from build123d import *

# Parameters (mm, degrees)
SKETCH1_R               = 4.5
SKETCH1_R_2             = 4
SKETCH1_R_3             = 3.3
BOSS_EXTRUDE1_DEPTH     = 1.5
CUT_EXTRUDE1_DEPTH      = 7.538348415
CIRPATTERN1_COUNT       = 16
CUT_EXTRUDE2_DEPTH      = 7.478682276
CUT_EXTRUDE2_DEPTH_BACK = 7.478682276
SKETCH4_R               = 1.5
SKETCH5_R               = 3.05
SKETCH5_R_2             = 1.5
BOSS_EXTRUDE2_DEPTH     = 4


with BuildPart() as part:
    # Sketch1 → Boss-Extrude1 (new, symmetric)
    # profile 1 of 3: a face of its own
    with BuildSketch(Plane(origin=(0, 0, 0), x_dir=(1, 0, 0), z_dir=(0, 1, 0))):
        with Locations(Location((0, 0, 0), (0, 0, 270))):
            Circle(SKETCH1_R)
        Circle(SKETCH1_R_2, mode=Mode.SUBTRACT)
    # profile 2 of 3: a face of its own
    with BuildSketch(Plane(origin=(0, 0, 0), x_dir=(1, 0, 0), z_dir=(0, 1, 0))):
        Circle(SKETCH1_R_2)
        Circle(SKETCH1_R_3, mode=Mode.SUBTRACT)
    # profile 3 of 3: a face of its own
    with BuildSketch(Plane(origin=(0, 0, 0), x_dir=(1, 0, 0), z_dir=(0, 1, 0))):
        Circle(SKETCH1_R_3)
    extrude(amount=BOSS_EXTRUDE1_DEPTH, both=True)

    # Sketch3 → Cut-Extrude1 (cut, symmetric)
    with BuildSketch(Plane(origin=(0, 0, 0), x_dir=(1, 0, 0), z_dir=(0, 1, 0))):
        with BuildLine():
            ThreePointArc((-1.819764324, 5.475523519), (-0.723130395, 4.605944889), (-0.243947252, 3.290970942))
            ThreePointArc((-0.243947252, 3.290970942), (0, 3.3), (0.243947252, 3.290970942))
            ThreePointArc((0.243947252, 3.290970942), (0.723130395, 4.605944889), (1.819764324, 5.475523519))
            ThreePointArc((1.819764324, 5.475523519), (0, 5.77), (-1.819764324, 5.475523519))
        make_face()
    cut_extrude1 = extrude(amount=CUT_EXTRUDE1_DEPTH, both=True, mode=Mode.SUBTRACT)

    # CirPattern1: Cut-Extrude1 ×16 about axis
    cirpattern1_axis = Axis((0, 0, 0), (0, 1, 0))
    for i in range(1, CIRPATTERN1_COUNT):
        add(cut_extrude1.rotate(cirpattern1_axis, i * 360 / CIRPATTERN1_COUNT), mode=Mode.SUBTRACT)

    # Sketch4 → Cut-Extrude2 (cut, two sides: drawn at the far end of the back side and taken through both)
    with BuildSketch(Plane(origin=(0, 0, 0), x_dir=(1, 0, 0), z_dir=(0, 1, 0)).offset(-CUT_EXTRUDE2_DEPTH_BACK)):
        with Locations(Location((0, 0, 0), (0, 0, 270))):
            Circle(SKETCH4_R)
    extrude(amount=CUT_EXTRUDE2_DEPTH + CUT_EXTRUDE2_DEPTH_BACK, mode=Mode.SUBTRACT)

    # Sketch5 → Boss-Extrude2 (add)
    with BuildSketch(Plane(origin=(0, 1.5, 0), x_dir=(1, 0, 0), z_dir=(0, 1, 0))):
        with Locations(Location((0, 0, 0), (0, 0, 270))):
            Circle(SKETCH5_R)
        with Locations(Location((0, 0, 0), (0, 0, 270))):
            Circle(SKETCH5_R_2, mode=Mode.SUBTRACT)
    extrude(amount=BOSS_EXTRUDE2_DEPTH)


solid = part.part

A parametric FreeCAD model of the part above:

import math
import FreeCAD as App
import Part
import Sketcher

V = App.Vector

doc = App.newDocument("Part")
body = doc.addObject("PartDesign::Body", "Body")

# Sketch on XZ plane
sketch1 = body.newObject("Sketcher::SketchObject", "Sketch")
sketch1.AttachmentSupport = (doc.getObject("XZ_Plane"), [""])
sketch1.MapMode = "FlatFace"
sketch1.addGeometry(Part.Circle(V(0, 0, 0), V(0, 0, 1), 4.5), False)
sketch1.addConstraint(Sketcher.Constraint("Coincident", 0, 3, -1, 1))
sketch1.addConstraint(Sketcher.Constraint("Diameter", 0, 9.0))
pad1 = body.newObject("PartDesign::Pad", "Pad")
pad1.Profile = sketch1
pad1.Length = 3
pad1.Midplane = True

# Sketch on XZ plane
sketch2 = body.newObject("Sketcher::SketchObject", "Sketch001")
sketch2.AttachmentSupport = (doc.getObject("XZ_Plane"), [""])
sketch2.MapMode = "FlatFace"
sketch2.addGeometry(Part.ArcOfCircle(Part.Circle(V(-2.80974, -3.100778, 0), V(0, 0, 1), 2.572832), math.radians(-67.369883), math.radians(-4.239367)), False)
sketch2.addGeometry(Part.ArcOfCircle(Part.Circle(V(0, 0, 0), V(0, 0, 1), 3.3), math.radians(-94.239366), math.radians(-85.760634)), False)
sketch2.addGeometry(Part.ArcOfCircle(Part.Circle(V(2.80974, -3.100778, 0), V(0, 0, 1), 2.572832), math.radians(-175.760633), math.radians(-112.630117)), False)
sketch2.addGeometry(Part.ArcOfCircle(Part.Circle(V(0, 0, 0), V(0, 0, 1), 5.77), math.radians(-108.383983), math.radians(-71.616017)), False)
sketch2.addConstraint(Sketcher.Constraint("Coincident", 0, 2, 1, 1))
sketch2.addConstraint(Sketcher.Constraint("Coincident", 1, 2, 2, 1))
sketch2.addConstraint(Sketcher.Constraint("Coincident", 2, 2, 3, 2))
sketch2.addConstraint(Sketcher.Constraint("Coincident", 3, 1, 0, 1))
sketch2.addConstraint(Sketcher.Constraint("Coincident", 1, 3, -1, 1))
sketch2.addConstraint(Sketcher.Constraint("Coincident", 3, 3, -1, 1))
sketch2.addConstraint(Sketcher.Constraint("Equal", 0, 2))
sketch2.addConstraint(Sketcher.Constraint("Symmetric", 0, 3, 2, 3, -2))
sketch2.addConstraint(Sketcher.Constraint("Radius", 1, 3.3))
sketch2.addConstraint(Sketcher.Constraint("Radius", 3, 5.77))
sketch2.addConstraint(Sketcher.Constraint("Radius", 0, 2.572832))
sketch2.addConstraint(Sketcher.Constraint("DistanceX", 0, 3, -1, 1, 2.80974))
sketch2.addConstraint(Sketcher.Constraint("DistanceY", 0, 3, -1, 1, 3.100778))
pocket1 = body.newObject("PartDesign::Pocket", "Pocket")
pocket1.Profile = sketch2
pocket1.Length = 15.076697
pocket1.Midplane = True
doc.recompute()

polarpattern = body.newObject("PartDesign::PolarPattern", "PolarPattern")
polarpattern.Originals = [pocket1]
polarpattern.Axis = (doc.getObject("Y_Axis"), [""])
polarpattern.Angle = 360
polarpattern.Occurrences = 16
body.Tip = polarpattern

# Sketch on XZ plane
sketch3 = body.newObject("Sketcher::SketchObject", "Sketch002")
sketch3.AttachmentSupport = (doc.getObject("XZ_Plane"), [""])
sketch3.MapMode = "FlatFace"
sketch3.addGeometry(Part.Circle(V(0, 0, 0), V(0, 0, 1), 1.5), False)
sketch3.addConstraint(Sketcher.Constraint("Coincident", 0, 3, -1, 1))
sketch3.addConstraint(Sketcher.Constraint("Diameter", 0, 3.0))
pocket2 = body.newObject("PartDesign::Pocket", "Pocket001")
pocket2.Profile = sketch3
pocket2.Type = "ThroughAll"
pocket2.Midplane = True

# Sketch on XZ plane
sketch4 = body.newObject("Sketcher::SketchObject", "Sketch003")
sketch4.AttachmentSupport = (doc.getObject("XZ_Plane"), [""])
sketch4.MapMode = "FlatFace"
sketch4.AttachmentOffset = App.Placement(V(0, 0, -1.5), App.Rotation())
sketch4.addGeometry(Part.Circle(V(0, 0, 0), V(0, 0, 1), 3.05), False)
sketch4.addGeometry(Part.Circle(V(0, 0, 0), V(0, 0, 1), 1.5), False)
sketch4.addConstraint(Sketcher.Constraint("Coincident", 0, 3, -1, 1))
sketch4.addConstraint(Sketcher.Constraint("Coincident", 1, 3, -1, 1))
sketch4.addConstraint(Sketcher.Constraint("Diameter", 1, 3.0))
sketch4.addConstraint(Sketcher.Constraint("Diameter", 0, 6.1))
pad2 = body.newObject("PartDesign::Pad", "Pad001")
pad2.Profile = sketch4
pad2.Length = 4
pad2.Reversed = True

doc.recompute()
